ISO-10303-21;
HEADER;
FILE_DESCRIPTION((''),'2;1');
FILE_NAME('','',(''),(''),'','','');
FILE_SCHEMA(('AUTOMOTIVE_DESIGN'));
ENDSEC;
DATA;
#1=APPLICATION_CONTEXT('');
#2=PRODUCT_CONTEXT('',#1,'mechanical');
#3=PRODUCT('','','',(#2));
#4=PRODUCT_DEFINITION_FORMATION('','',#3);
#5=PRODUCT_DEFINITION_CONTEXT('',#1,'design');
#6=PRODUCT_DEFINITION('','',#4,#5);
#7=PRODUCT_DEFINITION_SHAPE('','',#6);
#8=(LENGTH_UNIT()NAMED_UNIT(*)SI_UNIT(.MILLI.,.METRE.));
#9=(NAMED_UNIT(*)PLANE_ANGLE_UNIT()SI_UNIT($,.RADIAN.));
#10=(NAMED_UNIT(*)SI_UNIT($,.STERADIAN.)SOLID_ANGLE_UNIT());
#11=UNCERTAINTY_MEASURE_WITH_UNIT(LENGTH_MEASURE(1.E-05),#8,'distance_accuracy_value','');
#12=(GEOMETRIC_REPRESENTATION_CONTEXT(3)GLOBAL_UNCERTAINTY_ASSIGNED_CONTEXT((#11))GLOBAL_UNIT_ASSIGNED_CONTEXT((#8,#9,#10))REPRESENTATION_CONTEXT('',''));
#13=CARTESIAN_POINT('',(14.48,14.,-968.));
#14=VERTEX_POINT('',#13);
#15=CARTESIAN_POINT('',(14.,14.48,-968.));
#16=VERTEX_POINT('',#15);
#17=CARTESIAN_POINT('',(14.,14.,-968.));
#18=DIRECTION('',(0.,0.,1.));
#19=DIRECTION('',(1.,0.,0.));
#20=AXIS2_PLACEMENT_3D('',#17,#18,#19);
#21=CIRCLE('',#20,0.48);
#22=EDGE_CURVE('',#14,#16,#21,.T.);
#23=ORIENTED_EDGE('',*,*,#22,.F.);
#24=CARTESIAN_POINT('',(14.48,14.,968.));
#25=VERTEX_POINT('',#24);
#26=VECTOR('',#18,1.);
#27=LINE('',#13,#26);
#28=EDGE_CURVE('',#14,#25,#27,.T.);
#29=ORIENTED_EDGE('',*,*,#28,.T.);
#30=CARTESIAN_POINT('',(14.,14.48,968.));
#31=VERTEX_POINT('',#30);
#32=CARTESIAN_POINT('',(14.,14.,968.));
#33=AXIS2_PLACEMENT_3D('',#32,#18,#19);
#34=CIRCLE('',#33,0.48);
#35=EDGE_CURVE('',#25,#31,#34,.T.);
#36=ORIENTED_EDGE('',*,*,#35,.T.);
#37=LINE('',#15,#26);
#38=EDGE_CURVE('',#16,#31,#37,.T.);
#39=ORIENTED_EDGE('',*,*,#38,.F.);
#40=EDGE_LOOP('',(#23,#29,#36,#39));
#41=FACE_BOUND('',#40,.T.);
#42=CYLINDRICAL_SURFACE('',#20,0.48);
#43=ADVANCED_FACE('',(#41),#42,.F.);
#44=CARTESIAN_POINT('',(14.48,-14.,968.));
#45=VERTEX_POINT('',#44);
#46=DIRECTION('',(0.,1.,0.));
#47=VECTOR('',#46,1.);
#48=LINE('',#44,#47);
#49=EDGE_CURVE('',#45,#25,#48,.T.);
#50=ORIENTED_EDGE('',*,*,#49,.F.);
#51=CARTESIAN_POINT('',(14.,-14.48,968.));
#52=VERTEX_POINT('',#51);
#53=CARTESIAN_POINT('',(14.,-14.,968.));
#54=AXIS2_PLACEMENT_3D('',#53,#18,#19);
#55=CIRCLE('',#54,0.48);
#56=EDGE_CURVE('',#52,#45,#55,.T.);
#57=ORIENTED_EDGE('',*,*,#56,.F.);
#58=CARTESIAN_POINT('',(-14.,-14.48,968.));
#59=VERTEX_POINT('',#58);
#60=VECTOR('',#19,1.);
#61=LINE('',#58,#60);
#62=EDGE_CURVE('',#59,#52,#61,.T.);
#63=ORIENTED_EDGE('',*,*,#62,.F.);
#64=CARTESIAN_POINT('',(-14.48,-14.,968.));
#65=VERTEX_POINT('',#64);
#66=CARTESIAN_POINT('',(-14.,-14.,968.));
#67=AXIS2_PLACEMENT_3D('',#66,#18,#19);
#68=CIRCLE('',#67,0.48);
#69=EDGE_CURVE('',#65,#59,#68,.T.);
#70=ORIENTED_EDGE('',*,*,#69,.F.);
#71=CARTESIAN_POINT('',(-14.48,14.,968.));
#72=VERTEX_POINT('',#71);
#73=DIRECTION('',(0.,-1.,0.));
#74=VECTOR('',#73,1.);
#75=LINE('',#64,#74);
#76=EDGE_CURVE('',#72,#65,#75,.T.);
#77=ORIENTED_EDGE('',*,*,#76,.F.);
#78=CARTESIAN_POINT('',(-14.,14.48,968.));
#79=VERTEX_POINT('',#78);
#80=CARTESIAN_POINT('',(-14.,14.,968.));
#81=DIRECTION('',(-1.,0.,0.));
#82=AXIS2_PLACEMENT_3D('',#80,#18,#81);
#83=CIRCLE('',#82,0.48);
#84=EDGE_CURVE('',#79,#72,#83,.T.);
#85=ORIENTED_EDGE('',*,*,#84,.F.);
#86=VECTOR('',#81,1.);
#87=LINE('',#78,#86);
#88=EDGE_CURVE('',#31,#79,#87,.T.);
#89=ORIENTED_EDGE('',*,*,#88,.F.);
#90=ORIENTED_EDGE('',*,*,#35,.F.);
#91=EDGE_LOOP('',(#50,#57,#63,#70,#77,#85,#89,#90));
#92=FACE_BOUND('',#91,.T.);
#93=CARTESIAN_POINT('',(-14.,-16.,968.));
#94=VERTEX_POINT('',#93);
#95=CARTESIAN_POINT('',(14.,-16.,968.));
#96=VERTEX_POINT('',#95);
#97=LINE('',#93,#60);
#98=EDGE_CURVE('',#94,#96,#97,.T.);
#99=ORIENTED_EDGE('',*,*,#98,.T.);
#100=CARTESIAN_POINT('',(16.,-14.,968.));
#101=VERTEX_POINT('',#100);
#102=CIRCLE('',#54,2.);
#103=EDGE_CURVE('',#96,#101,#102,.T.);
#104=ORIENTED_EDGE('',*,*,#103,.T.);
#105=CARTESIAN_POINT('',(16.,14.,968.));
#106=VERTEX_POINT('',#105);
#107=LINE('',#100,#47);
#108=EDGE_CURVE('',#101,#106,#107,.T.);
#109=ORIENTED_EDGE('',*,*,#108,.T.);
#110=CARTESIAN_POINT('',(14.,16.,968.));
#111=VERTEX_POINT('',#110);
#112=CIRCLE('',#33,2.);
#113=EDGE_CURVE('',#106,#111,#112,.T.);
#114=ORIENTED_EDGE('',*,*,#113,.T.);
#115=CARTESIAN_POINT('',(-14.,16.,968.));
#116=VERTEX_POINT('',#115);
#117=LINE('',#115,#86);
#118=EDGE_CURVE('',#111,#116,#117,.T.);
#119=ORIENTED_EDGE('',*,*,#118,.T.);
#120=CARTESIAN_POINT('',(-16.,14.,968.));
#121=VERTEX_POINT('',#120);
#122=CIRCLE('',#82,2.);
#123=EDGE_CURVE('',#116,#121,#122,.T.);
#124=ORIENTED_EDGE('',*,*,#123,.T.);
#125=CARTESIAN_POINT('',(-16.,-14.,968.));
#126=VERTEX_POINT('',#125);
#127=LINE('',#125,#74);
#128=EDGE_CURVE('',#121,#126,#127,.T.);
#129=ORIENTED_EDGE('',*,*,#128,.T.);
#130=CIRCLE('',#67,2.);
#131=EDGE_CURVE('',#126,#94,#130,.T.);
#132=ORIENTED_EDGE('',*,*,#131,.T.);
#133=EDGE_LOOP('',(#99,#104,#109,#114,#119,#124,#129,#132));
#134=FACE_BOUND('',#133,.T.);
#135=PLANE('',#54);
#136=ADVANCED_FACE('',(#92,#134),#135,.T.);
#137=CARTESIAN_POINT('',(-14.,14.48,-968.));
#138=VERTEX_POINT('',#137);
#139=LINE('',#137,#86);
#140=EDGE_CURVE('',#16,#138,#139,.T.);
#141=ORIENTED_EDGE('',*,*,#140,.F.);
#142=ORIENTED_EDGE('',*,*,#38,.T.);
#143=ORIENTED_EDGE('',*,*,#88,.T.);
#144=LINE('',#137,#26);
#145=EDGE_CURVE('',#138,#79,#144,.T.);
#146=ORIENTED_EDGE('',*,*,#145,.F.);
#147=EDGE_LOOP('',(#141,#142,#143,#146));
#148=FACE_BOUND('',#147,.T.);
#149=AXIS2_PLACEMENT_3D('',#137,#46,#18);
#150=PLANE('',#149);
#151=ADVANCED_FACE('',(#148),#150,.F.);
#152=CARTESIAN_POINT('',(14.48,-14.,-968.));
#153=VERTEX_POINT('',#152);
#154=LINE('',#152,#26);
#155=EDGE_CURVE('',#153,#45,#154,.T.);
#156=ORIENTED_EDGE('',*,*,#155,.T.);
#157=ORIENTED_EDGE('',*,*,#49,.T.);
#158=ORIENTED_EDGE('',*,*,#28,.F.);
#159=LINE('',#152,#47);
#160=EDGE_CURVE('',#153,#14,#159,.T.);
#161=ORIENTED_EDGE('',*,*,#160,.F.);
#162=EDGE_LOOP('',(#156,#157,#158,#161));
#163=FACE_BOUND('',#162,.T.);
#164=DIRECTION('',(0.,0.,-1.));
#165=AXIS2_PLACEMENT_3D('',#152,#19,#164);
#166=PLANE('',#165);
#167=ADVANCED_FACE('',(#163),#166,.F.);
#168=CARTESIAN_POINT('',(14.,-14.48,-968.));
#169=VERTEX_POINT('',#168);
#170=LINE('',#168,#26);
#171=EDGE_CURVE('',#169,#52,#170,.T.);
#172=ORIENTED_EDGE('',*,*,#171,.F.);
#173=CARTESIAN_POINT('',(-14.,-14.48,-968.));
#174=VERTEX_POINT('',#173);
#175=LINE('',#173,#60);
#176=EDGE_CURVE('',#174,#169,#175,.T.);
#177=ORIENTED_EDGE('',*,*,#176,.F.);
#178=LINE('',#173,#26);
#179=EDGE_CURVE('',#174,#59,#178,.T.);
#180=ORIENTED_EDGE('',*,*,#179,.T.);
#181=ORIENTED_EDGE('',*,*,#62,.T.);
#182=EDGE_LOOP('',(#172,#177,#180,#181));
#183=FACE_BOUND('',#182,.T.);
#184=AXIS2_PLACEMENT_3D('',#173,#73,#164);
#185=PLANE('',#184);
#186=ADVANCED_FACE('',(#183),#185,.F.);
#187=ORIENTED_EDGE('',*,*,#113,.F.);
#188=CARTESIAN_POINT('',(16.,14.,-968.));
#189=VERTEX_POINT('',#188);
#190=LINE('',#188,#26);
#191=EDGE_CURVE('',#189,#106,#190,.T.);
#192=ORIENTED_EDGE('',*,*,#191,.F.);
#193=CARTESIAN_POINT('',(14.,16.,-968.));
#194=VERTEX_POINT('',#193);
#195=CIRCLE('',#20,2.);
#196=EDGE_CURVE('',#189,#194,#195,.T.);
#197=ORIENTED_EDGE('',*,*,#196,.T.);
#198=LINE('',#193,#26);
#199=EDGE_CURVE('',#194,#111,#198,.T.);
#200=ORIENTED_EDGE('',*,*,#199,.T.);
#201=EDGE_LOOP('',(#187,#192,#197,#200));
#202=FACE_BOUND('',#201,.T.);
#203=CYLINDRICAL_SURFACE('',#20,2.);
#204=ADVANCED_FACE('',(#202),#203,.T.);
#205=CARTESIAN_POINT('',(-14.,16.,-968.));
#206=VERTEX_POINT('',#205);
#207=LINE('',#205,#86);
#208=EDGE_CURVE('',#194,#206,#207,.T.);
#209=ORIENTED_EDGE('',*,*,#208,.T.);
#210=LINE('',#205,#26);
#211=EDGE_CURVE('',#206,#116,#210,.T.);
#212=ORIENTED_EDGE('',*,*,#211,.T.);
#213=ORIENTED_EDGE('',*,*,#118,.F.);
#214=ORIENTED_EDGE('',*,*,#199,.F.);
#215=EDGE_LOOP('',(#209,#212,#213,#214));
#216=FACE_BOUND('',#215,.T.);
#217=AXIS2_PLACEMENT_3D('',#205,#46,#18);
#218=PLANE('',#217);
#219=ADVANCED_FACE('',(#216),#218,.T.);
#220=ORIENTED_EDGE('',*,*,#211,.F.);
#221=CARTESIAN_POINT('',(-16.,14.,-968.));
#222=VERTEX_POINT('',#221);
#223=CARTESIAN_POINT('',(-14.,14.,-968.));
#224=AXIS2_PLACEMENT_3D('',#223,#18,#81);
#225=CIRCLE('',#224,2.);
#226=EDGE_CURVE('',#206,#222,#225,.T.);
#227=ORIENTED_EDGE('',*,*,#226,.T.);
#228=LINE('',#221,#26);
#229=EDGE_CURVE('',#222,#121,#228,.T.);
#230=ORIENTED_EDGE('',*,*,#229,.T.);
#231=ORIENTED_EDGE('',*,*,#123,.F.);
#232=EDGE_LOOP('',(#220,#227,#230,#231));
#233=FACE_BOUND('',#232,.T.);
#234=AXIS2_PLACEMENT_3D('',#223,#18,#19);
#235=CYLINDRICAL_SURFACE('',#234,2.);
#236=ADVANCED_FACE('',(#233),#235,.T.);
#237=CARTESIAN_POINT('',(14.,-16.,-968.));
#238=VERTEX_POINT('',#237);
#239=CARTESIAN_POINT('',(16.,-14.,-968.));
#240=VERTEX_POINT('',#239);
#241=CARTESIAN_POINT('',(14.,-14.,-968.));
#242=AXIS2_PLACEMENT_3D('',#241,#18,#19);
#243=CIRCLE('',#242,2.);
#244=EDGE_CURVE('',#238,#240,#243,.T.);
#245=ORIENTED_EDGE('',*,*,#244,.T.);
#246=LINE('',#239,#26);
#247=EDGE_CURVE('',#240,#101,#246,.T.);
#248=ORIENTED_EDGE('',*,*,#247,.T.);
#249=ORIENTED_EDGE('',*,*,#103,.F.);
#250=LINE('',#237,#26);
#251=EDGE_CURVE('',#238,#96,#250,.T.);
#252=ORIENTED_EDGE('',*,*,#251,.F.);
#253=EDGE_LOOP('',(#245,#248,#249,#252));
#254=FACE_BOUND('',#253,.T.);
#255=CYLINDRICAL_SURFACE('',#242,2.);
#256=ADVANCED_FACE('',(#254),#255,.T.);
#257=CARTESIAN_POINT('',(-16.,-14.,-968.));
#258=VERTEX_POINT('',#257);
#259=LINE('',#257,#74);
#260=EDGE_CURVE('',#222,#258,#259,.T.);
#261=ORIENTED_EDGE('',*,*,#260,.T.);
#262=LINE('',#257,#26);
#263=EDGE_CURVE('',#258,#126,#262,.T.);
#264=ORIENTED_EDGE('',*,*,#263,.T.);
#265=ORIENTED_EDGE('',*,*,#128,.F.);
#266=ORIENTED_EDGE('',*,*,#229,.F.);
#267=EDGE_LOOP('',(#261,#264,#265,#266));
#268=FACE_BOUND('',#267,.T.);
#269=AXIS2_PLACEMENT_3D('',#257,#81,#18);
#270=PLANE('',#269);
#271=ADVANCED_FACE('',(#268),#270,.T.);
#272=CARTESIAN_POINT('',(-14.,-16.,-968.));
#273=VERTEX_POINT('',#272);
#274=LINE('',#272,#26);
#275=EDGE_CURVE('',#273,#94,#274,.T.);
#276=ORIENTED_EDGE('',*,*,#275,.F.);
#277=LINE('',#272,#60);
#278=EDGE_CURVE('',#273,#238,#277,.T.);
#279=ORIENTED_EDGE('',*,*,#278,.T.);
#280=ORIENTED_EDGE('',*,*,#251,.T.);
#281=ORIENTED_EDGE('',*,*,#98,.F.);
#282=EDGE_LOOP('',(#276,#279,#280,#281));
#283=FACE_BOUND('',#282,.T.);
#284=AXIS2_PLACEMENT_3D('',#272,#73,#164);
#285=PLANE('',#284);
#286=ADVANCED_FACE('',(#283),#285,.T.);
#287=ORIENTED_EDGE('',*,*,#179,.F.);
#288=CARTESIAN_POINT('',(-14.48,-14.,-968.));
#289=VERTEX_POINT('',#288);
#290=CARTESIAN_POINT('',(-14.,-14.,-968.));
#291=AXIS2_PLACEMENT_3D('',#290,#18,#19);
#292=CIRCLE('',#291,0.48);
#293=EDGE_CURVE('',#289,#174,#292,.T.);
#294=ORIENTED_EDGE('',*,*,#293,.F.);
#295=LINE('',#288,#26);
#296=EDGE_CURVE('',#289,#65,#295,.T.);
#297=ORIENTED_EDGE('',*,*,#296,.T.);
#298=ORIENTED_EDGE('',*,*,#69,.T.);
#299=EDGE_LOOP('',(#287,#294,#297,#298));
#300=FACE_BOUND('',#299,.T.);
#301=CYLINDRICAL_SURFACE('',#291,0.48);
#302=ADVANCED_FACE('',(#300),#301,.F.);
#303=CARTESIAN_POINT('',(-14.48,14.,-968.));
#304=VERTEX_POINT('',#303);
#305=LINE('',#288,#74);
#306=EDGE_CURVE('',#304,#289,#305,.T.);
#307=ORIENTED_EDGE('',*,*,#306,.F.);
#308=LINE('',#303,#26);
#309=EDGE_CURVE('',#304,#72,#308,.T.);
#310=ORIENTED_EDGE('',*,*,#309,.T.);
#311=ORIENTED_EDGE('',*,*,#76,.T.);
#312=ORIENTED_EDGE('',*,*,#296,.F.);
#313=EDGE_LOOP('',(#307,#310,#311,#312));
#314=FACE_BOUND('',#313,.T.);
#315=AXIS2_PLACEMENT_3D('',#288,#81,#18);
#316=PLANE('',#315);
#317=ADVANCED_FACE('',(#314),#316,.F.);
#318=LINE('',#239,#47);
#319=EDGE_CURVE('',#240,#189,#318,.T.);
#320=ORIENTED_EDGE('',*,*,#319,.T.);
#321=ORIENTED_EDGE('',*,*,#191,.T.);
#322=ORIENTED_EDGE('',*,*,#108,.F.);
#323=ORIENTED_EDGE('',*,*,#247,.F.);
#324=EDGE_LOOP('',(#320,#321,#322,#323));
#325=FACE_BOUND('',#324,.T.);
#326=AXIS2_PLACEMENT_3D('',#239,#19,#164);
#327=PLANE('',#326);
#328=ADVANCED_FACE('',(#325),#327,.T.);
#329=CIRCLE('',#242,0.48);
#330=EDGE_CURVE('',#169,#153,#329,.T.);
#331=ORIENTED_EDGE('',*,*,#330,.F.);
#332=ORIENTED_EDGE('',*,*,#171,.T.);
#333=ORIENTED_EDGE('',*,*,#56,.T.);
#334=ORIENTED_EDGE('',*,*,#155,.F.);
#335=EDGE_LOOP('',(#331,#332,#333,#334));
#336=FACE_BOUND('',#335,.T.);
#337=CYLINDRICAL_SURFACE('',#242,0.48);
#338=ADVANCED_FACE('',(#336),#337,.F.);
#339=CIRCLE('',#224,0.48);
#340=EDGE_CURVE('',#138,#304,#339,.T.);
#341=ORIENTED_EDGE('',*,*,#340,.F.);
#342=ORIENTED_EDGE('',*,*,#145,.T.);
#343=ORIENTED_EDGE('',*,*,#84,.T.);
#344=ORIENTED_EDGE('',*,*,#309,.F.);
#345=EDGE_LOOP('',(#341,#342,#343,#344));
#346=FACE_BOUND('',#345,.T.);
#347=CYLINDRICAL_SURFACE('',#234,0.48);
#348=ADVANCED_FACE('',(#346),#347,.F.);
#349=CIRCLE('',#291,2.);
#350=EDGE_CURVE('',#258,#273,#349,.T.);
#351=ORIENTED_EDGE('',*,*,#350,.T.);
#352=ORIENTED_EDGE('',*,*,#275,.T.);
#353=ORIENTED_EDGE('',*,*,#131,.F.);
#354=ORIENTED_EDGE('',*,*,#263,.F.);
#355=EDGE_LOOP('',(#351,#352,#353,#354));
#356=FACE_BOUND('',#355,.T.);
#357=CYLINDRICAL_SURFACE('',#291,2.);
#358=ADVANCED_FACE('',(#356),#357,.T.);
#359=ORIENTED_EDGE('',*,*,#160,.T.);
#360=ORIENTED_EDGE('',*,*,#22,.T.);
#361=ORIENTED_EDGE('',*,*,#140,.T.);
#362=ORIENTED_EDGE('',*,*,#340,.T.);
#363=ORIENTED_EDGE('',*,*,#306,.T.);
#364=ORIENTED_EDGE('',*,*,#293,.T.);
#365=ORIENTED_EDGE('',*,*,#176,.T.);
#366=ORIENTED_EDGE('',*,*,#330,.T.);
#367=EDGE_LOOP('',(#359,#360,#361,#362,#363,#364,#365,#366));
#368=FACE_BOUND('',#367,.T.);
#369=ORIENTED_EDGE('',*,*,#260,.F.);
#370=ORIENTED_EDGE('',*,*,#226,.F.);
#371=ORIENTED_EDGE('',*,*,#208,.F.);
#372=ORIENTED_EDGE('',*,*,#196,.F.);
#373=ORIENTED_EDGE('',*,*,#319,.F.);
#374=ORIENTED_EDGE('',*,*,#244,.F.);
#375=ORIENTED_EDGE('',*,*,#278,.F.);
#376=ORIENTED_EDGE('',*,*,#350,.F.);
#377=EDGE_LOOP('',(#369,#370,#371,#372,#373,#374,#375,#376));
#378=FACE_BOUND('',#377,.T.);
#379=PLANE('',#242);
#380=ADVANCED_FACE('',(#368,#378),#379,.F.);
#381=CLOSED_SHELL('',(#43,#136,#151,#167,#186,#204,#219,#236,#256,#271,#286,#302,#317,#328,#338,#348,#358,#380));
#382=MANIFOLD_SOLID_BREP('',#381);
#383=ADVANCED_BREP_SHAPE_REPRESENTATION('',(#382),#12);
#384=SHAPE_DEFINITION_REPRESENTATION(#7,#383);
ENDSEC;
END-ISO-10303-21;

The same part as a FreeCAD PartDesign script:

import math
import FreeCAD as App
import Part
import Sketcher
from FreeCAD import Vector

doc = App.newDocument("Part")
body = doc.addObject("PartDesign::Body", "Body")

sketch1 = doc.addObject("Sketcher::SketchObject", "Sketch")
body.addObject(sketch1)
sketch1.AttachmentSupport = (doc.XY_Plane, [""])
sketch1.MapMode = "FlatFace"
sketch1.addGeometry([
    Part.LineSegment(Vector(-14, -16, 0), Vector(14, -16, 0)),
    Part.ArcOfCircle(Part.Circle(Vector(14, -14, 0), Vector(0, 0, 1), 2), math.radians(-90), math.radians(0)),
    Part.LineSegment(Vector(16, -14, 0), Vector(16, 14, 0)),
    Part.ArcOfCircle(Part.Circle(Vector(14, 14, 0), Vector(0, 0, 1), 2), math.radians(0), math.radians(90)),
    Part.LineSegment(Vector(14, 16, 0), Vector(-14, 16, 0)),
    Part.ArcOfCircle(Part.Circle(Vector(-14, 14, 0), Vector(0, 0, 1), 2), math.radians(90), math.radians(180)),
    Part.LineSegment(Vector(-16, 14, 0), Vector(-16, -14, 0)),
    Part.ArcOfCircle(Part.Circle(Vector(-14, -14, 0), Vector(0, 0, 1), 2), math.radians(-180), math.radians(-90)),
    Part.ArcOfCircle(Part.Circle(Vector(-14, 14, 0), Vector(0, 0, 1), 0.48), math.radians(90), math.radians(180)),
    Part.LineSegment(Vector(-14, 14.48, 0), Vector(14, 14.48, 0)),
    Part.ArcOfCircle(Part.Circle(Vector(14, 14, 0), Vector(0, 0, 1), 0.48), math.radians(0), math.radians(90)),
    Part.LineSegment(Vector(14.48, 14, 0), Vector(14.48, -14, 0)),
    Part.ArcOfCircle(Part.Circle(Vector(14, -14, 0), Vector(0, 0, 1), 0.48), math.radians(-90), math.radians(0)),
    Part.LineSegment(Vector(14, -14.48, 0), Vector(-14, -14.48, 0)),
    Part.ArcOfCircle(Part.Circle(Vector(-14, -14, 0), Vector(0, 0, 1), 0.48), math.radians(180), math.radians(270)),
    Part.LineSegment(Vector(-14.48, -14, 0), Vector(-14.48, 14, 0)),
], False)
sketch1.addConstraint([
    Sketcher.Constraint("Tangent", 0, 2, 1, 1),
    Sketcher.Constraint("Tangent", 1, 2, 2, 1),
    Sketcher.Constraint("Tangent", 2, 2, 3, 1),
    Sketcher.Constraint("Tangent", 3, 2, 4, 1),
    Sketcher.Constraint("Tangent", 4, 2, 5, 1),
    Sketcher.Constraint("Tangent", 5, 2, 6, 1),
    Sketcher.Constraint("Tangent", 6, 2, 7, 1),
    Sketcher.Constraint("Tangent", 7, 2, 0, 1),
    Sketcher.Constraint("Tangent", 8, 1, 9, 1),
    Sketcher.Constraint("Tangent", 9, 2, 10, 2),
    Sketcher.Constraint("Tangent", 10, 1, 11, 1),
    Sketcher.Constraint("Tangent", 11, 2, 12, 2),
    Sketcher.Constraint("Tangent", 12, 1, 13, 1),
    Sketcher.Constraint("Tangent", 13, 2, 14, 2),
    Sketcher.Constraint("Tangent", 14, 1, 15, 1),
    Sketcher.Constraint("Tangent", 15, 2, 8, 2),
    Sketcher.Constraint("Horizontal", 0),
    Sketcher.Constraint("Vertical", 2),
    Sketcher.Constraint("Horizontal", 4),
    Sketcher.Constraint("Vertical", 6),
    Sketcher.Constraint("Horizontal", 9),
    Sketcher.Constraint("Vertical", 11),
    Sketcher.Constraint("Horizontal", 13),
    Sketcher.Constraint("Vertical", 15),
    Sketcher.Constraint("Coincident", 8, 3, 5, 3),
    Sketcher.Constraint("Coincident", 10, 3, 3, 3),
    Sketcher.Constraint("Coincident", 12, 3, 1, 3),
    Sketcher.Constraint("Equal", 1, 3),
    Sketcher.Constraint("Equal", 3, 5),
    Sketcher.Constraint("Equal", 5, 7),
    Sketcher.Constraint("Equal", 12, 14),
    Sketcher.Constraint("Symmetric", 1, 3, 5, 3, -1, 1),
    Sketcher.Constraint("Equal", 13, 2),
    Sketcher.Constraint("Radius", 1, 2.0),
    Sketcher.Constraint("DistanceX", 0, 1, 0, 2, 28.0),
    Sketcher.Constraint("Radius", 8, 0.48),
])
pad1 = doc.addObject("PartDesign::Pad", "Pad")
body.addObject(pad1)
pad1.Profile = sketch1
pad1.Type = "TwoLengths"
pad1.Length = 968
pad1.Length2 = 968

doc.recompute()
